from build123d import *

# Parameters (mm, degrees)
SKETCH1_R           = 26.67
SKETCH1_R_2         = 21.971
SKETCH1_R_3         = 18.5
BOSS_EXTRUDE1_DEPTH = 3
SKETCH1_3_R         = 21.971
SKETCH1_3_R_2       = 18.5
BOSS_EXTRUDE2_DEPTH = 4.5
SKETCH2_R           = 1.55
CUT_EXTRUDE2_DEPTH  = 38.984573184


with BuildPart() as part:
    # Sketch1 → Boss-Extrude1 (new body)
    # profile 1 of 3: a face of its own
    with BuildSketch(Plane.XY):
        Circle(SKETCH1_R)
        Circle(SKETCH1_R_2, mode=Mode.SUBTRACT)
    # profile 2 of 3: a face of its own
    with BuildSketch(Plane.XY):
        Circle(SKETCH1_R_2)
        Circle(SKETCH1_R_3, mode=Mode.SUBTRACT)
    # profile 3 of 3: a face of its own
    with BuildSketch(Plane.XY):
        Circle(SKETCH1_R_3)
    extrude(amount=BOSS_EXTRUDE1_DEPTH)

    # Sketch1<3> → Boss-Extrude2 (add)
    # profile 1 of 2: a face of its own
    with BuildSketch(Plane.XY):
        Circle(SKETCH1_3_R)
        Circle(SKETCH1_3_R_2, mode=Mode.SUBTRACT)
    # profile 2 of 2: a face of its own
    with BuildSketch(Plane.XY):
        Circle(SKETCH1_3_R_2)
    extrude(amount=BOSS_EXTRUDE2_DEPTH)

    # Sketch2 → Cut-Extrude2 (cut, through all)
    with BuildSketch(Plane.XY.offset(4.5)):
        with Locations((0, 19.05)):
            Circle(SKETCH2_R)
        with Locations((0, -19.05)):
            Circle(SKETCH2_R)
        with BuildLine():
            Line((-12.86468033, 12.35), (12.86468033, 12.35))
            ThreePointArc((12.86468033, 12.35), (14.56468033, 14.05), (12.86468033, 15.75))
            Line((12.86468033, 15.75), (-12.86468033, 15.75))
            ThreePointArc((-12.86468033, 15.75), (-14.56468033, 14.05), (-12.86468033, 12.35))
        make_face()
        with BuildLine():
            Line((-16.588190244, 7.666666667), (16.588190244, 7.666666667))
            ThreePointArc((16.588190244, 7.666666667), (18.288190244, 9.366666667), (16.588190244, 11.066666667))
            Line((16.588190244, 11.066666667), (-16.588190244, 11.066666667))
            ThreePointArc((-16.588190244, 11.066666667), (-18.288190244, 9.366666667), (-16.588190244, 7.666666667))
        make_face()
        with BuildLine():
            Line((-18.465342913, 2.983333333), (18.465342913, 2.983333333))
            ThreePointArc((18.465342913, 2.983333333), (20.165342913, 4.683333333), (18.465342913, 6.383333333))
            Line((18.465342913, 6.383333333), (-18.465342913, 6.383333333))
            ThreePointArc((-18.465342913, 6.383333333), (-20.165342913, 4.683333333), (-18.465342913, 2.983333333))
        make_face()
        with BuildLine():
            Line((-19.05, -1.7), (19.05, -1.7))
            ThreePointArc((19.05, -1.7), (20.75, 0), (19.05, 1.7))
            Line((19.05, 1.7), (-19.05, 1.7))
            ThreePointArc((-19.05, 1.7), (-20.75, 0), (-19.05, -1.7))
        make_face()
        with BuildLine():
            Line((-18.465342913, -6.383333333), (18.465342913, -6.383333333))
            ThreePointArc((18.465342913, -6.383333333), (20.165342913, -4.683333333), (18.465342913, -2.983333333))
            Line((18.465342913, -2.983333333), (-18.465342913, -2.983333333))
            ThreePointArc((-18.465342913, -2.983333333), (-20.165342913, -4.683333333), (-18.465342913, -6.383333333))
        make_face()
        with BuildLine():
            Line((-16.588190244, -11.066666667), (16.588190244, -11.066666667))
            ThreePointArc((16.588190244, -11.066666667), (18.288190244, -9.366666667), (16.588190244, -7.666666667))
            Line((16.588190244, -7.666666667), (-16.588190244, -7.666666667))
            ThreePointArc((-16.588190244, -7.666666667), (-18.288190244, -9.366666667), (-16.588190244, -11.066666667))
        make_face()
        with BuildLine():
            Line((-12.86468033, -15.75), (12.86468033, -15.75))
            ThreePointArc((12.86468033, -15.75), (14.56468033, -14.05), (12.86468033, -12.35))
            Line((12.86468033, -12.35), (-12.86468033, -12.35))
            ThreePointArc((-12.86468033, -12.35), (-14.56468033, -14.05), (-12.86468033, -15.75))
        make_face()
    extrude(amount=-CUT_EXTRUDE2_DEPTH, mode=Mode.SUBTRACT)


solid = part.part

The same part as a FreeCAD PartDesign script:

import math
import FreeCAD as App
import Part
import Sketcher

V = App.Vector
Q = App.Units.Quantity

doc = App.newDocument("Part")
params = doc.addObject("Spreadsheet::Sheet", "Params")
for row, (alias, value) in enumerate([
    ("sketch1_diameter", "53.34 mm"),
    ("pad1_length", "3 mm"),
    ("pad2_length", "4.5 mm"),
    ("sketch3_diameter", "3.1 mm"),
    ("sketch3_radius", "1.7 mm"),
    ("sketch3_width", "38.1 mm"),
], start=1):
    params.set(f"A{row}", alias)
    params.set(f"B{row}", "=" + value)
    params.setAlias(f"B{row}", alias)

body = doc.addObject("PartDesign::Body", "Body")

sketch1 = body.newObject("Sketcher::SketchObject", "Sketch")
sketch1.AttachmentSupport = (doc.getObject("XY_Plane"), [""])
sketch1.MapMode = "FlatFace"
sketch1.addGeometry(Part.Circle(V(0, 0, 0), V(0, 0, 1), 27), False)
sketch1.addConstraint([
    Sketcher.Constraint("Coincident", 0, 3, -1, 1),
    Sketcher.Constraint("Diameter", 0, Q("53.34 mm")),
])
sketch1.setExpression("Constraints[1]", "Params.sketch1_diameter")
pad1 = body.newObject("PartDesign::Pad", "Pad")
pad1.Profile = sketch1
pad1.setExpression("Length", "Params.pad1_length")

sketch2 = body.newObject("Sketcher::SketchObject", "Sketch001")
sketch2.AttachmentSupport = (doc.getObject("XY_Plane"), [""])
sketch2.MapMode = "FlatFace"
sketch2.addGeometry(Part.Circle(V(0, 0, 0), V(0, 0, 1), 22), False)
sketch2.addConstraint([
    Sketcher.Constraint("Coincident", 0, 3, -1, 1),
    Sketcher.Constraint("Diameter", 0, Q("43.942 mm")),
])
pad2 = body.newObject("PartDesign::Pad", "Pad001")
pad2.Profile = sketch2
pad2.setExpression("Length", "Params.pad2_length")

sketch3 = body.newObject("Sketcher::SketchObject", "Sketch002")
sketch3.AttachmentSupport = (doc.getObject("XY_Plane"), [""])
sketch3.MapMode = "FlatFace"
sketch3.AttachmentOffset = App.Placement(V(0, 0, 4.5), App.Rotation())
sketch3.addGeometry([
    Part.Circle(V(0, 19.1, 0), V(0, 0, 1), 1.6),
    Part.Circle(V(0, -19.1, 0), V(0, 0, 1), 1.6),
    Part.LineSegment(V(-12.9, 12.3, 0), V(12.9, 12.3, 0)),
    Part.ArcOfCircle(Part.Circle(V(12.9, 14.1, 0), V(0, 0, 1), 1.7), math.radians(-90), math.radians(90)),
    Part.LineSegment(V(12.9, 15.8, 0), V(-12.9, 15.8, 0)),
    Part.ArcOfCircle(Part.Circle(V(-12.9, 14.1, 0), V(0, 0, 1), 1.7), math.radians(90), math.radians(270)),
    Part.LineSegment(V(-16.6, 7.7, 0), V(16.6, 7.7, 0)),
    Part.ArcOfCircle(Part.Circle(V(16.6, 9.4, 0), V(0, 0, 1), 1.7), math.radians(-90), math.radians(90)),
    Part.LineSegment(V(16.6, 11.1, 0), V(-16.6, 11.1, 0)),
    Part.ArcOfCircle(Part.Circle(V(-16.6, 9.4, 0), V(0, 0, 1), 1.7), math.radians(90), math.radians(270)),
    Part.LineSegment(V(-18.5, 3, 0), V(18.5, 3, 0)),
    Part.ArcOfCircle(Part.Circle(V(18.5, 4.7, 0), V(0, 0, 1), 1.7), math.radians(-90), math.radians(90)),
    Part.LineSegment(V(18.5, 6.4, 0), V(-18.5, 6.4, 0)),
    Part.ArcOfCircle(Part.Circle(V(-18.5, 4.7, 0), V(0, 0, 1), 1.7), math.radians(90), math.radians(270)),
    Part.LineSegment(V(-19.1, -1.7, 0), V(19.1, -1.7, 0)),
    Part.ArcOfCircle(Part.Circle(V(19.1, 0, 0), V(0, 0, 1), 1.7), math.radians(-90), math.radians(90)),
    Part.LineSegment(V(19.1, 1.7, 0), V(-19.1, 1.7, 0)),
    Part.ArcOfCircle(Part.Circle(V(-19.1, 0, 0), V(0, 0, 1), 1.7), math.radians(90), math.radians(270)),
    Part.LineSegment(V(-18.5, -6.4, 0), V(18.5, -6.4, 0)),
    Part.ArcOfCircle(Part.Circle(V(18.5, -4.7, 0), V(0, 0, 1), 1.7), math.radians(-90), math.radians(90)),
    Part.LineSegment(V(18.5, -3, 0), V(-18.5, -3, 0)),
    Part.ArcOfCircle(Part.Circle(V(-18.5, -4.7, 0), V(0, 0, 1), 1.7), math.radians(90), math.radians(270)),
    Part.LineSegment(V(-16.6, -11.1, 0), V(16.6, -11.1, 0)),
    Part.ArcOfCircle(Part.Circle(V(16.6, -9.4, 0), V(0, 0, 1), 1.7), math.radians(-90), math.radians(90)),
    Part.LineSegment(V(16.6, -7.7, 0), V(-16.6, -7.7, 0)),
    Part.ArcOfCircle(Part.Circle(V(-16.6, -9.4, 0), V(0, 0, 1), 1.7), math.radians(90), math.radians(270)),
    Part.LineSegment(V(-12.9, -15.8, 0), V(12.9, -15.8, 0)),
    Part.ArcOfCircle(Part.Circle(V(12.9, -14.1, 0), V(0, 0, 1), 1.7), math.radians(-90), math.radians(90)),
    Part.LineSegment(V(12.9, -12.3, 0), V(-12.9, -12.3, 0)),
    Part.ArcOfCircle(Part.Circle(V(-12.9, -14.1, 0), V(0, 0, 1), 1.7), math.radians(90), math.radians(270)),
], False)
sketch3.addConstraint([
    Sketcher.Constraint("Tangent", 2, 2, 3, 1),
    Sketcher.Constraint("Tangent", 3, 2, 4, 1),
    Sketcher.Constraint("Tangent", 4, 2, 5, 1),
    Sketcher.Constraint("Tangent", 5, 2, 2, 1),
    Sketcher.Constraint("Tangent", 6, 2, 7, 1),
    Sketcher.Constraint("Tangent", 7, 2, 8, 1),
    Sketcher.Constraint("Tangent", 8, 2, 9, 1),
    Sketcher.Constraint("Tangent", 9, 2, 6, 1),
    Sketcher.Constraint("Tangent", 10, 2, 11, 1),
    Sketcher.Constraint("Tangent", 11, 2, 12, 1),
    Sketcher.Constraint("Tangent", 12, 2, 13, 1),
    Sketcher.Constraint("Tangent", 13, 2, 10, 1),
    Sketcher.Constraint("Tangent", 14, 2, 15, 1),
    Sketcher.Constraint("Tangent", 15, 2, 16, 1),
    Sketcher.Constraint("Tangent", 16, 2, 17, 1),
    Sketcher.Constraint("Tangent", 17, 2, 14, 1),
    Sketcher.Constraint("Tangent", 18, 2, 19, 1),
    Sketcher.Constraint("Tangent", 19, 2, 20, 1),
    Sketcher.Constraint("Tangent", 20, 2, 21, 1),
    Sketcher.Constraint("Tangent", 21, 2, 18, 1),
    Sketcher.Constraint("Tangent", 22, 2, 23, 1),
    Sketcher.Constraint("Tangent", 23, 2, 24, 1),
    Sketcher.Constraint("Tangent", 24, 2, 25, 1),
    Sketcher.Constraint("Tangent", 25, 2, 22, 1),
    Sketcher.Constraint("Tangent", 26, 2, 27, 1),
    Sketcher.Constraint("Tangent", 27, 2, 28, 1),
    Sketcher.Constraint("Tangent", 28, 2, 29, 1),
    Sketcher.Constraint("Tangent", 29, 2, 26, 1),
    Sketcher.Constraint("Horizontal", 2),
    Sketcher.Constraint("Horizontal", 4),
    Sketcher.Constraint("Horizontal", 6),
    Sketcher.Constraint("Horizontal", 8),
    Sketcher.Constraint("Horizontal", 10),
    Sketcher.Constraint("Horizontal", 12),
    Sketcher.Constraint("Horizontal", 14),
    Sketcher.Constraint("Horizontal", 16),
    Sketcher.Constraint("Horizontal", 18),
    Sketcher.Constraint("Horizontal", 20),
    Sketcher.Constraint("Horizontal", 22),
    Sketcher.Constraint("Horizontal", 24),
    Sketcher.Constraint("Horizontal", 26),
    Sketcher.Constraint("Horizontal", 28),
    Sketcher.Constraint("Equal", 0, 1),
    Sketcher.Constraint("Equal", 5, 7),
    Sketcher.Constraint("Equal", 9, 11),
    Sketcher.Constraint("Equal", 13, 15),
    Sketcher.Constraint("Equal", 17, 19),
    Sketcher.Constraint("Equal", 21, 23),
    Sketcher.Constraint("Equal", 25, 27),
    Sketcher.Constraint("Symmetric", 0, 3, 1, 3, -1, 1),
    Sketcher.Constraint("Symmetric", 15, 3, 17, 3, -1, 1),
    Sketcher.Constraint("Symmetric", 13, 3, 19, 3, -1, 1),
    Sketcher.Constraint("Symmetric", 9, 3, 23, 3, -1, 1),
    Sketcher.Constraint("Symmetric", 5, 3, 27, 3, -1, 1),
    Sketcher.Constraint("PointOnObject", 0, 3, -2),
    Sketcher.Constraint("Vertical", 11, 3, 19, 3),
    Sketcher.Constraint("Vertical", 13, 3, 21, 3),
    Sketcher.Constraint("Vertical", 7, 3, 23, 3),
    Sketcher.Constraint("Vertical", 9, 3, 25, 3),
    Sketcher.Constraint("Vertical", 3, 3, 27, 3),
    Sketcher.Constraint("Vertical", 5, 3, 29, 3),
    Sketcher.Constraint("Diameter", 0, Q("3.1 mm")),
    Sketcher.Constraint("Radius", 3, Q("1.7 mm")),
    Sketcher.Constraint("DistanceX", 14, 1, 14, 2, Q("38.1 mm")),
    Sketcher.Constraint("DistanceY", 3, 3, 0, 3, Q("5 mm")),
    Sketcher.Constraint("DistanceY", 1, 3, 0, 3, Q("38.1 mm")),
    Sketcher.Constraint("DistanceY", 19, 3, 7, 3, Q("14.05 mm")),
    Sketcher.Constraint("DistanceX", 2, 1, 2, 2, Q("25.729361 mm")),
    Sketcher.Constraint("DistanceX", 6, 1, 6, 2, Q("33.17638 mm")),
    Sketcher.Constraint("DistanceX", 10, 1, 10, 2, Q("36.930686 mm")),
    Sketcher.Constraint("DistanceY", -1, 1, 7, 3, Q("9.366667 mm")),
])
sketch3.setExpression("Constraints[61]", "Params.sketch3_diameter")
sketch3.setExpression("Constraints[62]", "Params.sketch3_radius")
sketch3.setExpression("Constraints[63]", "Params.sketch3_width")
pocket1 = body.newObject("PartDesign::Pocket", "Pocket")
pocket1.Profile = sketch3
pocket1.Type = "ThroughAll"

doc.recompute()
